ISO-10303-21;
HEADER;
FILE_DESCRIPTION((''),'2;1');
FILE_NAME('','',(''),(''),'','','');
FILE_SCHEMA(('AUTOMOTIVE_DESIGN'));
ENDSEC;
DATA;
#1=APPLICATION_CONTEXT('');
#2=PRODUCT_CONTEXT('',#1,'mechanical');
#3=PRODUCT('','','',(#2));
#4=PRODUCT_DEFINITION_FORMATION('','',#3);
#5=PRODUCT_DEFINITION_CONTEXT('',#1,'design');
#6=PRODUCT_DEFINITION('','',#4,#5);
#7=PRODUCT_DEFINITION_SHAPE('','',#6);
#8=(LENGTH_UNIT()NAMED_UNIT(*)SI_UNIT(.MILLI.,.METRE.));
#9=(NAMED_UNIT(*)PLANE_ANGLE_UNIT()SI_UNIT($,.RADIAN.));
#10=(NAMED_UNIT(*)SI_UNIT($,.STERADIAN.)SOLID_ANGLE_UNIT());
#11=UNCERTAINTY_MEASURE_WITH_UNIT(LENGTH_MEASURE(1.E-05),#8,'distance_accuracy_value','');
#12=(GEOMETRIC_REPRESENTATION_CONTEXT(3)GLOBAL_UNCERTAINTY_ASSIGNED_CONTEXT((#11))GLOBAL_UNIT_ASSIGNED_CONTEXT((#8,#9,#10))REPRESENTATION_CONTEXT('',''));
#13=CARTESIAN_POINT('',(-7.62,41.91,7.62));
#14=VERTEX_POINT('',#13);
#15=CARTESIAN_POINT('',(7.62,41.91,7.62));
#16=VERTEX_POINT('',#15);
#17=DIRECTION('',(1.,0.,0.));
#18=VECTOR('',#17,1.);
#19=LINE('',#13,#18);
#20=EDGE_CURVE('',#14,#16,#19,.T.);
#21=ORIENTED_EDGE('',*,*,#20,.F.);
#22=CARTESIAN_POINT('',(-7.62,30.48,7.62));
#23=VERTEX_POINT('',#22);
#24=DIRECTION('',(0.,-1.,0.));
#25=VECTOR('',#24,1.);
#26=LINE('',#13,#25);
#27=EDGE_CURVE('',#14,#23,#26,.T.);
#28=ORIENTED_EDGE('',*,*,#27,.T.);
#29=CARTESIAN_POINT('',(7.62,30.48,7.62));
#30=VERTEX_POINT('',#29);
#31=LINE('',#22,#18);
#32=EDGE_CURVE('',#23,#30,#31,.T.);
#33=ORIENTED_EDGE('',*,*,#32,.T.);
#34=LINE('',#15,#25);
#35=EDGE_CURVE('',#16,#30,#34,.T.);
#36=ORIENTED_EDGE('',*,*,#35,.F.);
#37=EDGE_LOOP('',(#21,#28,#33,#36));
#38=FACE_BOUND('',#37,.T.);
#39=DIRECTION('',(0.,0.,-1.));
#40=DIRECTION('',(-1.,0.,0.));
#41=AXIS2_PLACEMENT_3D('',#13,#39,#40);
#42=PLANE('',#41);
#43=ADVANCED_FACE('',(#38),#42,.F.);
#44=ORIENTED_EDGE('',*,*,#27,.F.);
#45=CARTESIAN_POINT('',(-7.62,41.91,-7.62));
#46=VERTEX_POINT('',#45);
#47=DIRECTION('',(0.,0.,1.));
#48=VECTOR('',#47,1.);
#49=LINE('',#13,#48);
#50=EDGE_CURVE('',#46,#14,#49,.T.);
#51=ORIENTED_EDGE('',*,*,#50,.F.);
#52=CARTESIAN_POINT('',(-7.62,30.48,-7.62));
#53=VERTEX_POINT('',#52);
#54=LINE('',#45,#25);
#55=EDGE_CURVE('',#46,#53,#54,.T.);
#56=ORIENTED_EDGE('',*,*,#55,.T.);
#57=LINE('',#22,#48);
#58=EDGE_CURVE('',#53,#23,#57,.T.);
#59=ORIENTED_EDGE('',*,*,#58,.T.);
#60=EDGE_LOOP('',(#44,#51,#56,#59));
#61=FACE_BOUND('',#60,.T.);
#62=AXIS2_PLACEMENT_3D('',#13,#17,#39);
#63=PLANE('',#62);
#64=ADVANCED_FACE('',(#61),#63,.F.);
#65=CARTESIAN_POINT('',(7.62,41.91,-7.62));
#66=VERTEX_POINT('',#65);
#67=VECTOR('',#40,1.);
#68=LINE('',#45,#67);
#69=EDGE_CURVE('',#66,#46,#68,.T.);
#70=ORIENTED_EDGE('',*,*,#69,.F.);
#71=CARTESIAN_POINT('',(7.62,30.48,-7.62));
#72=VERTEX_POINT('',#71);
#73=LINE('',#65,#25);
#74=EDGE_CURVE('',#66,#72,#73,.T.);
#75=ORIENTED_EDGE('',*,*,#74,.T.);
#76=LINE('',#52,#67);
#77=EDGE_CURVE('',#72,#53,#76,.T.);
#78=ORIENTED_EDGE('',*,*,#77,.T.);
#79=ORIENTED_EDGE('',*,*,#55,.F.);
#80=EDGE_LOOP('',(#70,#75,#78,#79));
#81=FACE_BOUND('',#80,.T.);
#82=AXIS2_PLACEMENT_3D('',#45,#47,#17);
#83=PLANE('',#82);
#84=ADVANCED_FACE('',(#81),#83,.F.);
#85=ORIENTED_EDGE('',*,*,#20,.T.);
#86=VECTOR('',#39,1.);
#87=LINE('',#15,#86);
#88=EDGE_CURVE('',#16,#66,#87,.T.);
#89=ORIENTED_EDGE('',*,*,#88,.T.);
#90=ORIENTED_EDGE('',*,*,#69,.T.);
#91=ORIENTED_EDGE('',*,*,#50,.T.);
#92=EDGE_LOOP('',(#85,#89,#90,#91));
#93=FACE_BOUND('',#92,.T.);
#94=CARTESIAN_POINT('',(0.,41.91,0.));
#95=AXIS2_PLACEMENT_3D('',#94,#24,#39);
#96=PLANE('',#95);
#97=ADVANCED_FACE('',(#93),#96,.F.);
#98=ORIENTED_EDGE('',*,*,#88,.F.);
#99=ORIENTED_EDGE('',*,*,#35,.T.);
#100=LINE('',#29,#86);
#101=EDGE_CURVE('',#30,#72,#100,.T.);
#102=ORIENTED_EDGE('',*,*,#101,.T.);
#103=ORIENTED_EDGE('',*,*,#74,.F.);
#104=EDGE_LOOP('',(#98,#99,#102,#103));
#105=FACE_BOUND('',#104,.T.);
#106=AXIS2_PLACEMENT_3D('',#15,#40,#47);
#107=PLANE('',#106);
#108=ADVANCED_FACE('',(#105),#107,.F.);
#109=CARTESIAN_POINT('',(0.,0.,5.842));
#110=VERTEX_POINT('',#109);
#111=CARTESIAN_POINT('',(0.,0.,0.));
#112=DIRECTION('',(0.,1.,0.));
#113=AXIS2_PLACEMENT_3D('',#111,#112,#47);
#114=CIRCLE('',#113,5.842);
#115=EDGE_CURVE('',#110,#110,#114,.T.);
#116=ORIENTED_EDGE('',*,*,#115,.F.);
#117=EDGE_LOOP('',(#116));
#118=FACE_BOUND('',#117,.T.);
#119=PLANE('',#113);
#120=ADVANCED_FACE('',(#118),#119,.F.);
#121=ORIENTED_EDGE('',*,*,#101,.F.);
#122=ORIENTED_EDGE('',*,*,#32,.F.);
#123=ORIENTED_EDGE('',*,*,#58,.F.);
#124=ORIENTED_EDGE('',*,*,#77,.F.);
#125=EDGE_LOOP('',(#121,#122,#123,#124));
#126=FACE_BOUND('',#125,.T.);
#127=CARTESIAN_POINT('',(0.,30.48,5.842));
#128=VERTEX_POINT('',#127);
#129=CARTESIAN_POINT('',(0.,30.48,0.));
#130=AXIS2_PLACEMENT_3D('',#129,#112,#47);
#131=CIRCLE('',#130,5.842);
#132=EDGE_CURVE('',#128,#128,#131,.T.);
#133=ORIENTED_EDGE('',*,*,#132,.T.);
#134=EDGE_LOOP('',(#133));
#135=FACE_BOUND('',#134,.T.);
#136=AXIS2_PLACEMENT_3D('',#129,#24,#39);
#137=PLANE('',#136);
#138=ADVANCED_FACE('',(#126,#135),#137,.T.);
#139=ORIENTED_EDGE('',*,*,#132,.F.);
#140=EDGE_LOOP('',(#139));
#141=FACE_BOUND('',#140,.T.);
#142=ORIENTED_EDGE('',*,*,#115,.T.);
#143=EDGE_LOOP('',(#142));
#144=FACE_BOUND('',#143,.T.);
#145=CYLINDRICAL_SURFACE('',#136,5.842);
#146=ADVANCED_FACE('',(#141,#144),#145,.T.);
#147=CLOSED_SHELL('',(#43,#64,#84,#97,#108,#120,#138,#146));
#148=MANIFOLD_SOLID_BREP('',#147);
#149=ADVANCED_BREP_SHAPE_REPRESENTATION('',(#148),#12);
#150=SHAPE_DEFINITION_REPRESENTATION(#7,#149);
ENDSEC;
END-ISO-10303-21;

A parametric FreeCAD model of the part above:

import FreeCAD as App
import Part
import Sketcher
Q = App.Units.Quantity


def add_polygon(sketch, points):
    """Adds a closed chain of lines whose ends are joined by coincident constraints."""
    first, n = sketch.GeometryCount, len(points)
    for a, b in zip(points, points[1:] + points[:1]):
        sketch.addGeometry(Part.LineSegment(App.Vector(*a, 0), App.Vector(*b, 0)), False)
    for i in range(n):
        sketch.addConstraint(Sketcher.Constraint("Coincident", first + i, 2, first + (i + 1) % n, 1))

doc = App.newDocument("Part")
body = doc.addObject("PartDesign::Body", "Body")

# Sketch on XZ plane
sketch1 = doc.addObject("Sketcher::SketchObject", "Sketch")
body.addObject(sketch1)
sketch1.AttachmentSupport = (doc.XZ_Plane, [""])
sketch1.MapMode = "FlatFace"
sketch1.addGeometry(Part.Circle(App.Vector(0, 0, 0), App.Vector(0, 0, 1), 6), False)
sketch1.addConstraint([
    Sketcher.Constraint("Coincident", 0, 3, -1, 1),
    Sketcher.Constraint("Diameter", 0, Q("0.46 in")),
])
pad1 = doc.addObject("PartDesign::Pad", "Pad")
body.addObject(pad1)
pad1.Profile = sketch1
pad1.Length = Q("1.2 in")
pad1.Reversed = True

# Sketch on XZ plane
sketch2 = doc.addObject("Sketcher::SketchObject", "Sketch001")
body.addObject(sketch2)
sketch2.AttachmentSupport = (doc.XZ_Plane, [""])
sketch2.MapMode = "FlatFace"
sketch2.AttachmentOffset = App.Placement(App.Vector(0, 0, -1.2 * 25.4), App.Rotation())
add_polygon(sketch2, [(-8, -8), (-8, 8), (8, 8), (8, -8)])  # lines 0-3
sketch2.addConstraint([
    Sketcher.Constraint("Vertical", 0),
    Sketcher.Constraint("Horizontal", 1),
    Sketcher.Constraint("Vertical", 2),
    Sketcher.Constraint("Horizontal", 3),
    Sketcher.Constraint("Symmetric", 0, 2, 2, 2, -1, 1),
    Sketcher.Constraint("Equal", 3, 0),
    Sketcher.Constraint("DistanceX", 1, 1, 1, 2, Q("0.6 in")),
])
pad2 = doc.addObject("PartDesign::Pad", "Pad001")
body.addObject(pad2)
pad2.Profile = sketch2
pad2.Length = Q("0.45 in")
pad2.Reversed = True

doc.recompute()
